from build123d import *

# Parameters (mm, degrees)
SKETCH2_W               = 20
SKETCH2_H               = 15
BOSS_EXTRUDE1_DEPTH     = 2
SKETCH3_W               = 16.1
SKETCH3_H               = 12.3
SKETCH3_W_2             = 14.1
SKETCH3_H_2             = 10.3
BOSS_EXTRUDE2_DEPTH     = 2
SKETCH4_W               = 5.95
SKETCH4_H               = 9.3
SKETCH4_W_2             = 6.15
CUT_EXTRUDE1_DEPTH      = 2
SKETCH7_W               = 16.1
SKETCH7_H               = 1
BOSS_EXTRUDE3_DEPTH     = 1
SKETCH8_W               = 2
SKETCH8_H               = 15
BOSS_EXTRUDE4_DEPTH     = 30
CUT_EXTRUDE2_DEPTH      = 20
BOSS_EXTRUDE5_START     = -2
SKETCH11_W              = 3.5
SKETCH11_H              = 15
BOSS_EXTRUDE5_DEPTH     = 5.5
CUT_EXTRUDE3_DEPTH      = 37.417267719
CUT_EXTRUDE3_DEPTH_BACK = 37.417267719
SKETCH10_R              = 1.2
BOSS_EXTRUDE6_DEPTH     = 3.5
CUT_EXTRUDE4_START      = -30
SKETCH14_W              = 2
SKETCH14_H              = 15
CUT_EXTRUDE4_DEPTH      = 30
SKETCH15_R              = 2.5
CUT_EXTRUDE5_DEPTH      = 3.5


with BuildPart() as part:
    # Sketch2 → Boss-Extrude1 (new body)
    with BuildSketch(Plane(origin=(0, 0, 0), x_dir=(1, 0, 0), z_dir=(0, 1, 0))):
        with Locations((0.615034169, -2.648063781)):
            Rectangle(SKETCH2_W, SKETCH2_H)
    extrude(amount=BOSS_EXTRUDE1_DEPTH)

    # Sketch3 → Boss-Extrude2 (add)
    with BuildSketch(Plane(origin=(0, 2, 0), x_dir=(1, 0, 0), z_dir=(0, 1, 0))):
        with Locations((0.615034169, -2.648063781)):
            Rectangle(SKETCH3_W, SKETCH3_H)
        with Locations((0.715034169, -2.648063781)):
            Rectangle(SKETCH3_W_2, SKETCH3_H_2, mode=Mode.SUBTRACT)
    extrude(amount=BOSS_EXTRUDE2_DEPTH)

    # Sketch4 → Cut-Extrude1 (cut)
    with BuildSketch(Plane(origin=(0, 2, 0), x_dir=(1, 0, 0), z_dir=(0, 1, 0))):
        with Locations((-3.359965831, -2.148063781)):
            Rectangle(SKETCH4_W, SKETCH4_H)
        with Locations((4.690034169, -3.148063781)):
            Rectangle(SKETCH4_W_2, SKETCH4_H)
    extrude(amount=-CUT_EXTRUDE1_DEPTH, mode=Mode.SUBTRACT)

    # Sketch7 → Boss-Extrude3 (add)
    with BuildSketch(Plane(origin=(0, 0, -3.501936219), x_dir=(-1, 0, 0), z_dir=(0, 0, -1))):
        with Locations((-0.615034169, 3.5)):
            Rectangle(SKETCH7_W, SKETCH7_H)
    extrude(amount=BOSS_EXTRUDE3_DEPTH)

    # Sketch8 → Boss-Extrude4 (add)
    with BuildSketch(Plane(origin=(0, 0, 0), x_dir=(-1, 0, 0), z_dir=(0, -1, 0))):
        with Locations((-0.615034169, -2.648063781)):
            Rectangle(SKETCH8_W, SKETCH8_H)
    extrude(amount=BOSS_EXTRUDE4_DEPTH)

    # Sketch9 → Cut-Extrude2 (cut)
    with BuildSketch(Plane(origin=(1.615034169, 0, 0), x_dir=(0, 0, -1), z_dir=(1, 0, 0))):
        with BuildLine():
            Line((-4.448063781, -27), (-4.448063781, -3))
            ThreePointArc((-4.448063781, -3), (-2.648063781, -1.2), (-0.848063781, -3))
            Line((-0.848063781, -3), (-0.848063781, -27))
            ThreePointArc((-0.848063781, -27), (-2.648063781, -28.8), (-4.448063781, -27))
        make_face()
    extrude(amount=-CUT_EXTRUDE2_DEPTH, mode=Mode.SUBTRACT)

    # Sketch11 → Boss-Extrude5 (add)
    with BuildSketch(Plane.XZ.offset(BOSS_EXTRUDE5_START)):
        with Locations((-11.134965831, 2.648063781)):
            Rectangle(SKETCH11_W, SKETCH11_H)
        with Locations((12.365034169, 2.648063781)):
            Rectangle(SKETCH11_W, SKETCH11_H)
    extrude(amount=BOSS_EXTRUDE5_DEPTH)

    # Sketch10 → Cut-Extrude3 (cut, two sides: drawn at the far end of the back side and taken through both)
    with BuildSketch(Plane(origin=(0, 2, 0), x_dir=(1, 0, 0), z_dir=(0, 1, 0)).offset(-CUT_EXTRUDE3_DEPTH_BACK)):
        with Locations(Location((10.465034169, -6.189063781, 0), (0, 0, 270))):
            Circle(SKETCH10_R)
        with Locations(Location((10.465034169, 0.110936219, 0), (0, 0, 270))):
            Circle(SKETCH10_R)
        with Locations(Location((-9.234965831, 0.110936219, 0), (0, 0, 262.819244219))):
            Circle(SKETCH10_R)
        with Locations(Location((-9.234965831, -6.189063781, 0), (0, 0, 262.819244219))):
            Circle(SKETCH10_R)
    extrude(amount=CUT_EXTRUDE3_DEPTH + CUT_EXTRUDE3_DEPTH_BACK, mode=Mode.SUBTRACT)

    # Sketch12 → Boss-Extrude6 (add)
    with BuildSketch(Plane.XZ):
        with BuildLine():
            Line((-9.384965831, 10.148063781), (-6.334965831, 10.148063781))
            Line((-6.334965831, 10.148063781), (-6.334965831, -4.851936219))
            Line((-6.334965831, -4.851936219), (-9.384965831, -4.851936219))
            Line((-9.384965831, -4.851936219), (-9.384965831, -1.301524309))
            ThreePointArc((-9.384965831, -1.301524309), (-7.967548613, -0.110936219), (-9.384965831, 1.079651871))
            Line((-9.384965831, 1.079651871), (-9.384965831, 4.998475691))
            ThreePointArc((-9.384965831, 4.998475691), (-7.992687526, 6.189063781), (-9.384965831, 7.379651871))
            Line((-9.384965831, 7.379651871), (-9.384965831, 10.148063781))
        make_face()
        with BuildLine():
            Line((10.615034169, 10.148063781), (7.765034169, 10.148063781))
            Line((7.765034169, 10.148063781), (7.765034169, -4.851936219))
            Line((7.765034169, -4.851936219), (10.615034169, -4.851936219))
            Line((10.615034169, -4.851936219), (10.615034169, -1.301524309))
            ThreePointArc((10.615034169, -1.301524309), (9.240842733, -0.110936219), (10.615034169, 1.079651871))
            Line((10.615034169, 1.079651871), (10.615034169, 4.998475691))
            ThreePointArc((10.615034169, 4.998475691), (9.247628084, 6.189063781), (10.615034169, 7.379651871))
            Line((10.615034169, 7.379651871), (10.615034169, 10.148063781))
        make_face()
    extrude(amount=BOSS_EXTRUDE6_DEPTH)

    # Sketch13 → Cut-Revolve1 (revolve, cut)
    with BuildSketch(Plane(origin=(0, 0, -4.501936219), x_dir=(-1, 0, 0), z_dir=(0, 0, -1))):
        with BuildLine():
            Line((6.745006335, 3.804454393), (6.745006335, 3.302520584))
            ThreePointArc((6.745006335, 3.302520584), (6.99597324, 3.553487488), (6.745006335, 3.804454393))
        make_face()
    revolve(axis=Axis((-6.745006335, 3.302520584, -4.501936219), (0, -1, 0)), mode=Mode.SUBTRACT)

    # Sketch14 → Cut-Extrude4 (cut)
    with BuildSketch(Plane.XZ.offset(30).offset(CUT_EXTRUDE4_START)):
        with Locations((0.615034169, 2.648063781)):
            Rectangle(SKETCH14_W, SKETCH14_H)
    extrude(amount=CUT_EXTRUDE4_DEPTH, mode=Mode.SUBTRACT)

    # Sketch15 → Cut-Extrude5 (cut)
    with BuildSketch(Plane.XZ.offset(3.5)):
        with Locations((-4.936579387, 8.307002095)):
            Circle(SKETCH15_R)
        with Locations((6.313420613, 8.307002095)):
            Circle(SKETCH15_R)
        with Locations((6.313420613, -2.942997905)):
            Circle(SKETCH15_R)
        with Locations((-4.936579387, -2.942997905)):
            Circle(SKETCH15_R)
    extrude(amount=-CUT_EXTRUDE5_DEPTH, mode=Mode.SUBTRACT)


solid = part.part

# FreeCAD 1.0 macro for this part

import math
import FreeCAD as App
import Part
import Sketcher

V = App.Vector

doc = App.newDocument("Part")
body = doc.addObject("PartDesign::Body", "Body")

# Sketch on XZ plane
sketch1 = body.newObject("Sketcher::SketchObject", "Sketch")
sketch1.AttachmentSupport = (doc.getObject("XZ_Plane"), [""])
sketch1.MapMode = "FlatFace"
sketch1.addGeometry([
    Part.LineSegment(V(-9, -5, 0), V(-9, 10, 0)),
    Part.LineSegment(V(-9, 10, 0), V(11, 10, 0)),
    Part.LineSegment(V(11, 10, 0), V(11, -5, 0)),
    Part.LineSegment(V(11, -5, 0), V(-9, -5, 0)),
], False)
sketch1.addConstraint([
    Sketcher.Constraint("Coincident", 0, 2, 1, 1),
    Sketcher.Constraint("Coincident", 1, 2, 2, 1),
    Sketcher.Constraint("Coincident", 2, 2, 3, 1),
    Sketcher.Constraint("Coincident", 3, 2, 0, 1),
    Sketcher.Constraint("Vertical", 0),
    Sketcher.Constraint("Horizontal", 1),
    Sketcher.Constraint("Vertical", 2),
    Sketcher.Constraint("Horizontal", 3),
    Sketcher.Constraint("DistanceX", 1, 1, 1, 2, 20.0),
    Sketcher.Constraint("DistanceY", 0, 1, 0, 2, 15.0),
    Sketcher.Constraint("DistanceX", 0, 2, -1, 1, 9.384966),
    Sketcher.Constraint("DistanceY", -1, 1, 0, 2, 10.148064),
])
pad1 = body.newObject("PartDesign::Pad", "Pad")
pad1.Profile = sketch1
pad1.Length = 2
pad1.Reversed = True

# Sketch on XZ plane
sketch2 = body.newObject("Sketcher::SketchObject", "Sketch001")
sketch2.AttachmentSupport = (doc.getObject("XZ_Plane"), [""])
sketch2.MapMode = "FlatFace"
sketch2.AttachmentOffset = App.Placement(V(0, 0, -2), App.Rotation())
sketch2.addGeometry([
    Part.LineSegment(V(-7, -4, 0), V(-7, 9, 0)),  # 0
    Part.LineSegment(V(-7, 9, 0), V(9, 9, 0)),  # 1
    Part.LineSegment(V(9, 9, 0), V(9, -4, 0)),  # 2
    Part.LineSegment(V(9, -4, 0), V(-7, -4, 0)),  # 3
    Part.LineSegment(V(8, 8, 0), V(-6, 8, 0)),  # 4
    Part.LineSegment(V(-6, 8, 0), V(-6, -3, 0)),  # 5
    Part.LineSegment(V(-6, -3, 0), V(8, -3, 0)),  # 6
    Part.LineSegment(V(8, -3, 0), V(8, 8, 0)),  # 7
], False)
sketch2.addConstraint([
    Sketcher.Constraint("Coincident", 0, 2, 1, 1),
    Sketcher.Constraint("Coincident", 1, 2, 2, 1),
    Sketcher.Constraint("Coincident", 2, 2, 3, 1),
    Sketcher.Constraint("Coincident", 3, 2, 0, 1),
    Sketcher.Constraint("Coincident", 4, 2, 5, 1),
    Sketcher.Constraint("Coincident", 5, 2, 6, 1),
    Sketcher.Constraint("Coincident", 6, 2, 7, 1),
    Sketcher.Constraint("Coincident", 7, 2, 4, 1),
    Sketcher.Constraint("Vertical", 0),
    Sketcher.Constraint("Horizontal", 1),
    Sketcher.Constraint("Vertical", 2),
    Sketcher.Constraint("Horizontal", 3),
    Sketcher.Constraint("Horizontal", 4),
    Sketcher.Constraint("Vertical", 5),
    Sketcher.Constraint("Horizontal", 6),
    Sketcher.Constraint("Vertical", 7),
    Sketcher.Constraint("DistanceX", 1, 1, 1, 2, 16.1),
    Sketcher.Constraint("DistanceX", 4, 2, 4, 1, 14.1),
    Sketcher.Constraint("DistanceY", 0, 1, 0, 2, 12.3),
    Sketcher.Constraint("DistanceY", 5, 2, 5, 1, 10.3),
    Sketcher.Constraint("DistanceY", 4, 2, 0, 2, 1.0),
    Sketcher.Constraint("DistanceX", 4, 2, 1, 2, 15.0),
    Sketcher.Constraint("DistanceX", 0, 2, -1, 1, 7.434966),
    Sketcher.Constraint("DistanceY", -1, 1, 0, 2, 8.798064),
])
pad2 = body.newObject("PartDesign::Pad", "Pad001")
pad2.Profile = sketch2
pad2.Length = 2
pad2.Reversed = True

# Sketch on XZ plane
sketch3 = body.newObject("Sketcher::SketchObject", "Sketch002")
sketch3.AttachmentSupport = (doc.getObject("XZ_Plane"), [""])
sketch3.MapMode = "FlatFace"
sketch3.AttachmentOffset = App.Placement(V(0, 0, -2), App.Rotation())
sketch3.addGeometry([
    Part.LineSegment(V(-6, -3, 0), V(-6, 7, 0)),  # 0
    Part.LineSegment(V(-6, 7, 0), V(0, 7, 0)),  # 1
    Part.LineSegment(V(0, 7, 0), V(0, -3, 0)),  # 2
    Part.LineSegment(V(0, -3, 0), V(-6, -3, 0)),  # 3
    Part.LineSegment(V(2, -2, 0), V(2, 8, 0)),  # 4
    Part.LineSegment(V(2, 8, 0), V(8, 8, 0)),  # 5
    Part.LineSegment(V(8, 8, 0), V(8, -2, 0)),  # 6
    Part.LineSegment(V(8, -2, 0), V(2, -2, 0)),  # 7
], False)
sketch3.addConstraint([
    Sketcher.Constraint("Coincident", 0, 2, 1, 1),
    Sketcher.Constraint("Coincident", 1, 2, 2, 1),
    Sketcher.Constraint("Coincident", 2, 2, 3, 1),
    Sketcher.Constraint("Coincident", 3, 2, 0, 1),
    Sketcher.Constraint("Coincident", 4, 2, 5, 1),
    Sketcher.Constraint("Coincident", 5, 2, 6, 1),
    Sketcher.Constraint("Coincident", 6, 2, 7, 1),
    Sketcher.Constraint("Coincident", 7, 2, 4, 1),
    Sketcher.Constraint("Vertical", 0),
    Sketcher.Constraint("Horizontal", 1),
    Sketcher.Constraint("Vertical", 2),
    Sketcher.Constraint("Horizontal", 3),
    Sketcher.Constraint("Vertical", 4),
    Sketcher.Constraint("Horizontal", 5),
    Sketcher.Constraint("Vertical", 6),
    Sketcher.Constraint("Horizontal", 7),
    Sketcher.Constraint("Equal", 2, 4),
    Sketcher.Constraint("DistanceY", 0, 1, 0, 2, 9.3),
    Sketcher.Constraint("DistanceX", 1, 2, 4, 2, 2.0),
    Sketcher.Constraint("DistanceY", 1, 2, 4, 2, 1.0),
    Sketcher.Constraint("DistanceX", 1, 1, 1, 2, 5.95),
    Sketcher.Constraint("DistanceX", 5, 1, 5, 2, 6.15),
    Sketcher.Constraint("DistanceX", 0, 2, -1, 1, 6.334966),
    Sketcher.Constraint("DistanceY", -1, 1, 0, 2, 6.798064),
])
pocket1 = body.newObject("PartDesign::Pocket", "Pocket")
pocket1.Profile = sketch3
pocket1.Length = 2
pocket1.Reversed = True

# Sketch on XY plane
sketch4 = body.newObject("Sketcher::SketchObject", "Sketch003")
sketch4.AttachmentSupport = (doc.getObject("XY_Plane"), [""])
sketch4.MapMode = "FlatFace"
sketch4.AttachmentOffset = App.Placement(V(0, 0, -3.501936), App.Rotation())
sketch4.addGeometry([
    Part.LineSegment(V(8.7, 4, 0), V(8.7, 3, 0)),
    Part.LineSegment(V(8.7, 3, 0), V(-7.4, 3, 0)),
    Part.LineSegment(V(-7.4, 3, 0), V(-7.4, 4, 0)),
    Part.LineSegment(V(-7.4, 4, 0), V(8.7, 4, 0)),
], False)
sketch4.addConstraint([
    Sketcher.Constraint("Coincident", 0, 2, 1, 1),
    Sketcher.Constraint("Coincident", 1, 2, 2, 1),
    Sketcher.Constraint("Coincident", 2, 2, 3, 1),
    Sketcher.Constraint("Coincident", 3, 2, 0, 1),
    Sketcher.Constraint("Vertical", 0),
    Sketcher.Constraint("Horizontal", 1),
    Sketcher.Constraint("Vertical", 2),
    Sketcher.Constraint("Horizontal", 3),
    Sketcher.Constraint("DistanceY", 0, 2, 0, 1, 1.0),
    Sketcher.Constraint("DistanceX", 1, 2, 1, 1, 16.1),
    Sketcher.Constraint("DistanceY", -1, 1, 0, 2, 3.0),
    Sketcher.Constraint("DistanceX", -1, 1, 0, 2, 8.665034),
])
pad3 = body.newObject("PartDesign::Pad", "Pad002")
pad3.Profile = sketch4
pad3.Length = 1
pad3.Reversed = True

# Sketch on XZ plane
sketch5 = body.newObject("Sketcher::SketchObject", "Sketch004")
sketch5.AttachmentSupport = (doc.getObject("XZ_Plane"), [""])
sketch5.MapMode = "FlatFace"
sketch5.addGeometry([
    Part.LineSegment(V(1.6, -4.9, 0), V(1.6, 10.1, 0)),
    Part.LineSegment(V(1.6, 10.1, 0), V(-0.4, 10.1, 0)),
    Part.LineSegment(V(-0.4, 10.1, 0), V(-0.4, -4.9, 0)),
    Part.LineSegment(V(-0.4, -4.9, 0), V(1.6, -4.9, 0)),
], False)
sketch5.addConstraint([
    Sketcher.Constraint("Coincident", 0, 2, 1, 1),
    Sketcher.Constraint("Coincident", 1, 2, 2, 1),
    Sketcher.Constraint("Coincident", 2, 2, 3, 1),
    Sketcher.Constraint("Coincident", 3, 2, 0, 1),
    Sketcher.Constraint("Vertical", 0),
    Sketcher.Constraint("Horizontal", 1),
    Sketcher.Constraint("Vertical", 2),
    Sketcher.Constraint("Horizontal", 3),
    Sketcher.Constraint("DistanceX", 1, 2, 1, 1, 2.0),
    Sketcher.Constraint("DistanceY", 0, 1, 0, 2, 15.0),
    Sketcher.Constraint("DistanceX", -1, 1, 0, 2, 1.615034),
    Sketcher.Constraint("DistanceY", -1, 1, 0, 2, 10.148064),
])
pad4 = body.newObject("PartDesign::Pad", "Pad003")
pad4.Profile = sketch5
pad4.Length = 30

# Sketch on YZ plane
sketch6 = body.newObject("Sketcher::SketchObject", "Sketch005")
sketch6.AttachmentSupport = (doc.getObject("YZ_Plane"), [""])
sketch6.MapMode = "FlatFace"
sketch6.AttachmentOffset = App.Placement(V(0, 0, 1.615034), App.Rotation())
sketch6.addGeometry([
    Part.LineSegment(V(-3, 4.4, 0), V(-27, 4.4, 0)),
    Part.ArcOfCircle(Part.Circle(V(-27, 2.6, 0), V(0, 0, 1), 1.8), math.radians(90), math.radians(270)),
    Part.LineSegment(V(-27, 0.8, 0), V(-3, 0.8, 0)),
    Part.ArcOfCircle(Part.Circle(V(-3, 2.6, 0), V(0, 0, 1), 1.8), math.radians(-90), math.radians(90)),
], False)
sketch6.addConstraint([
    Sketcher.Constraint("Tangent", 0, 2, 1, 1),
    Sketcher.Constraint("Tangent", 1, 2, 2, 1),
    Sketcher.Constraint("Tangent", 2, 2, 3, 1),
    Sketcher.Constraint("Tangent", 3, 2, 0, 1),
    Sketcher.Constraint("Horizontal", 0),
    Sketcher.Constraint("Horizontal", 2),
    Sketcher.Constraint("Radius", 1, 1.8),
    Sketcher.Constraint("DistanceX", 0, 2, 0, 1, 24.0),
    Sketcher.Constraint("DistanceX", 1, 3, -1, 1, 27.0),
    Sketcher.Constraint("DistanceY", -1, 1, 1, 3, 2.648064),
])
pocket2 = body.newObject("PartDesign::Pocket", "Pocket001")
pocket2.Profile = sketch6
pocket2.Length = 20

# Sketch on XZ plane
sketch7 = body.newObject("Sketcher::SketchObject", "Sketch006")
sketch7.AttachmentSupport = (doc.getObject("XZ_Plane"), [""])
sketch7.MapMode = "FlatFace"
sketch7.AttachmentOffset = App.Placement(V(0, 0, -2), App.Rotation())
sketch7.addGeometry([
    Part.LineSegment(V(-12.9, 10.1, 0), V(-12.9, -4.9, 0)),  # 0
    Part.LineSegment(V(-12.9, -4.9, 0), V(-9.4, -4.9, 0)),  # 1
    Part.LineSegment(V(-9.4, -4.9, 0), V(-9.4, 10.1, 0)),  # 2
    Part.LineSegment(V(-9.4, 10.1, 0), V(-12.9, 10.1, 0)),  # 3
    Part.LineSegment(V(10.6, 10.1, 0), V(10.6, -4.9, 0)),  # 4
    Part.LineSegment(V(10.6, -4.9, 0), V(14.1, -4.9, 0)),  # 5
    Part.LineSegment(V(14.1, -4.9, 0), V(14.1, 10.1, 0)),  # 6
    Part.LineSegment(V(14.1, 10.1, 0), V(10.6, 10.1, 0)),  # 7
], False)
sketch7.addConstraint([
    Sketcher.Constraint("Coincident", 0, 2, 1, 1),
    Sketcher.Constraint("Coincident", 1, 2, 2, 1),
    Sketcher.Constraint("Coincident", 2, 2, 3, 1),
    Sketcher.Constraint("Coincident", 3, 2, 0, 1),
    Sketcher.Constraint("Coincident", 4, 2, 5, 1),
    Sketcher.Constraint("Coincident", 5, 2, 6, 1),
    Sketcher.Constraint("Coincident", 6, 2, 7, 1),
    Sketcher.Constraint("Coincident", 7, 2, 4, 1),
    Sketcher.Constraint("Vertical", 0),
    Sketcher.Constraint("Horizontal", 1),
    Sketcher.Constraint("Vertical", 2),
    Sketcher.Constraint("Horizontal", 3),
    Sketcher.Constraint("Vertical", 4),
    Sketcher.Constraint("Horizontal", 5),
    Sketcher.Constraint("Vertical", 6),
    Sketcher.Constraint("Horizontal", 7),
    Sketcher.Constraint("Horizontal", 1, 2, 4, 2),
    Sketcher.Constraint("Horizontal", 3, 2, 6, 2),
    Sketcher.Constraint("Equal", 3, 5),
    Sketcher.Constraint("DistanceY", 0, 2, 0, 1, 15.0),
    Sketcher.Constraint("DistanceX", 1, 1, 1, 2, 3.5),
    Sketcher.Constraint("DistanceX", 1, 2, 4, 2, 20.0),
    Sketcher.Constraint("DistanceX", 0, 2, -1, 1, 12.884966),
    Sketcher.Constraint("DistanceY", 0, 2, -1, 1, 4.851936),
])
pad5 = body.newObject("PartDesign::Pad", "Pad004")
pad5.Profile = sketch7
pad5.Length = 5.5

# Sketch on XZ plane
sketch8 = body.newObject("Sketcher::SketchObject", "Sketch007")
sketch8.AttachmentSupport = (doc.getObject("XZ_Plane"), [""])
sketch8.MapMode = "FlatFace"
sketch8.AttachmentOffset = App.Placement(V(0, 0, -2), App.Rotation())
sketch8.addGeometry([
    Part.Circle(V(10.5, 6.2, 0), V(0, 0, 1), 1.2),
    Part.Circle(V(10.5, -0.1, 0), V(0, 0, 1), 1.2),
    Part.Circle(V(-9.2, -0.1, 0), V(0, 0, 1), 1.2),
    Part.Circle(V(-9.2, 6.2, 0), V(0, 0, 1), 1.2),
], False)
sketch8.addConstraint([
    Sketcher.Constraint("Equal", 0, 1),
    Sketcher.Constraint("Equal", 1, 2),
    Sketcher.Constraint("Equal", 2, 3),
    Sketcher.Constraint("Horizontal", 1, 3, 2, 3),
    Sketcher.Constraint("Horizontal", 0, 3, 3, 3),
    Sketcher.Constraint("Vertical", 0, 3, 1, 3),
    Sketcher.Constraint("Vertical", 2, 3, 3, 3),
    Sketcher.Constraint("Diameter", 0, 2.4),
    Sketcher.Constraint("DistanceY", 1, 3, 0, 3, 6.3),
    Sketcher.Constraint("DistanceX", 2, 3, 1, 3, 19.7),
    Sketcher.Constraint("DistanceX", -1, 1, 0, 3, 10.465034),
    Sketcher.Constraint("DistanceY", -1, 1, 0, 3, 6.189064),
])
pocket3 = body.newObject("PartDesign::Pocket", "Pocket002")
pocket3.Profile = sketch8
pocket3.Type = "ThroughAll"
pocket3.Midplane = True

# Sketch on XZ plane
sketch9 = body.newObject("Sketcher::SketchObject", "Sketch008")
sketch9.AttachmentSupport = (doc.getObject("XZ_Plane"), [""])
sketch9.MapMode = "FlatFace"
sketch9.addGeometry([
    Part.LineSegment(V(-6.3, 10.1, 0), V(-9.4, 10.1, 0)),  # 0
    Part.LineSegment(V(-9.4, 10.1, 0), V(-9.4, 7.4, 0)),  # 1
    Part.ArcOfCircle(Part.Circle(V(-9.2, 6.2, 0), V(0, 0, 1), 1.2), math.radians(-99), math.radians(99)),  # 2
    Part.LineSegment(V(-9.4, 5, 0), V(-9.4, 1.1, 0)),  # 3
    Part.ArcOfCircle(Part.Circle(V(-9.2, -0.1, 0), V(0, 0, 1), 1.2), math.radians(-100), math.radians(100)),  # 4
    Part.LineSegment(V(-9.4, -1.3, 0), V(-9.4, -4.9, 0)),  # 5
    Part.LineSegment(V(-9.4, -4.9, 0), V(-6.3, -4.9, 0)),  # 6
    Part.LineSegment(V(-6.3, -4.9, 0), V(-6.3, 10.1, 0)),  # 7
    Part.LineSegment(V(10.6, 10.1, 0), V(7.8, 10.1, 0)),  # 8
    Part.LineSegment(V(7.8, 10.1, 0), V(7.8, -4.9, 0)),  # 9
    Part.LineSegment(V(7.8, -4.9, 0), V(10.6, -4.9, 0)),  # 10
    Part.LineSegment(V(10.6, -4.9, 0), V(10.6, -1.3, 0)),  # 11
    Part.ArcOfCircle(Part.Circle(V(10.4, -0.1, 0), V(0, 0, 1), 1.2), math.radians(82), math.radians(278)),  # 12
    Part.LineSegment(V(10.6, 1.1, 0), V(10.6, 5, 0)),  # 13
    Part.ArcOfCircle(Part.Circle(V(10.4, 6.2, 0), V(0, 0, 1), 1.2), math.radians(82), math.radians(278)),  # 14
    Part.LineSegment(V(10.6, 7.4, 0), V(10.6, 10.1, 0)),  # 15
], False)
sketch9.addConstraint([
    Sketcher.Constraint("Coincident", 0, 2, 1, 1),
    Sketcher.Constraint("Coincident", 1, 2, 2, 2),
    Sketcher.Constraint("Coincident", 2, 1, 3, 1),
    Sketcher.Constraint("Coincident", 3, 2, 4, 2),
    Sketcher.Constraint("Coincident", 4, 1, 5, 1),
    Sketcher.Constraint("Coincident", 5, 2, 6, 1),
    Sketcher.Constraint("Coincident", 6, 2, 7, 1),
    Sketcher.Constraint("Coincident", 7, 2, 0, 1),
    Sketcher.Constraint("Coincident", 8, 2, 9, 1),
    Sketcher.Constraint("Coincident", 9, 2, 10, 1),
    Sketcher.Constraint("Coincident", 10, 2, 11, 1),
    Sketcher.Constraint("Coincident", 11, 2, 12, 2),
    Sketcher.Constraint("Coincident", 12, 1, 13, 1),
    Sketcher.Constraint("Coincident", 13, 2, 14, 2),
    Sketcher.Constraint("Coincident", 14, 1, 15, 1),
    Sketcher.Constraint("Coincident", 15, 2, 8, 1),
    Sketcher.Constraint("Horizontal", 0),
    Sketcher.Constraint("Vertical", 1),
    Sketcher.Constraint("Vertical", 3),
    Sketcher.Constraint("Vertical", 5),
    Sketcher.Constraint("Horizontal", 6),
    Sketcher.Constraint("Vertical", 7),
    Sketcher.Constraint("Horizontal", 8),
    Sketcher.Constraint("Vertical", 9),
    Sketcher.Constraint("Horizontal", 10),
    Sketcher.Constraint("Vertical", 11),
    Sketcher.Constraint("Vertical", 13),
    Sketcher.Constraint("Vertical", 15),
    Sketcher.Constraint("Horizontal", 4, 3, 12, 3),
    Sketcher.Constraint("Horizontal", 2, 3, 14, 3),
    Sketcher.Constraint("Horizontal", 7, 2, 8, 2),
    Sketcher.Constraint("Horizontal", 6, 2, 9, 2),
    Sketcher.Constraint("Horizontal", 4, 1, 11, 2),
    Sketcher.Constraint("Horizontal", 3, 2, 12, 1),
    Sketcher.Constraint("Horizontal", 2, 1, 13, 2),
    Sketcher.Constraint("Horizontal", 1, 2, 14, 1),
    Sketcher.Constraint("Vertical", 1, 2, 2, 1),
    Sketcher.Constraint("Vertical", 3, 2, 4, 1),
    Sketcher.Constraint("DistanceY", 7, 1, 7, 2, 15.0),
    Sketcher.Constraint("DistanceX", 0, 2, 0, 1, 3.05),
    Sketcher.Constraint("DistanceX", 8, 2, 8, 1, 2.85),
    Sketcher.Constraint("DistanceY", 4, 3, 2, 3, 6.3),
    Sketcher.Constraint("DistanceY", 3, 2, 1, 2, 6.3),
    Sketcher.Constraint("DistanceX", 7, 2, 8, 2, 14.1),
    Sketcher.Constraint("Radius", 14, 1.20202),
    Sketcher.Constraint("Radius", 2, 1.205197),
    Sketcher.Constraint("Radius", 4, 1.208738),
    Sketcher.Constraint("Radius", 12, 1.202854),
    Sketcher.Constraint("DistanceY", 2, 3, 0, 2, 3.959),
    Sketcher.Constraint("DistanceY", 1, 2, 1, 1, 2.768412),
    Sketcher.Constraint("DistanceX", -1, 1, 14, 3, 10.449648),
    Sketcher.Constraint("DistanceY", -1, 1, 1, 2, 7.379652),
])
pad6 = body.newObject("PartDesign::Pad", "Pad005")
pad6.Profile = sketch9
pad6.Length = 3.5

# Sketch on XY plane
sketch10 = body.newObject("Sketcher::SketchObject", "Sketch009")
sketch10.AttachmentSupport = (doc.getObject("XY_Plane"), [""])
sketch10.MapMode = "FlatFace"
sketch10.AttachmentOffset = App.Placement(V(0, 0, -4.501936), App.Rotation())
sketch10.addGeometry([
    Part.LineSegment(V(-6.75, 3.8, 0), V(-6.75, 3.3, 0)),
    Part.ArcOfCircle(Part.Circle(V(-6.75, 3.55, 0), V(0, 0, 1), 0.25), math.radians(90), math.radians(270)),
], False)
sketch10.addGeometry(Part.LineSegment(V(-6.75, 3.8, 0), V(-6.75, 3.3, 0)), True)  # axis
sketch10.addConstraint([
    Sketcher.Constraint("Coincident", 0, 1, 1, 1),
    Sketcher.Constraint("Coincident", 1, 2, 0, 2),
    Sketcher.Constraint("Vertical", 0),
    Sketcher.Constraint("Vertical", 2),
    Sketcher.Constraint("Coincident", 2, 1, 0, 1),
    Sketcher.Constraint("Vertical", 1, 3, 0, 1),
    Sketcher.Constraint("Equal", 0, 2),
    Sketcher.Constraint("Radius", 1, 0.250967),
    Sketcher.Constraint("DistanceY", -1, 1, 1, 2, 3.302521),
    Sketcher.Constraint("DistanceX", 1, 3, -1, 1, 6.745006),
])
groove = body.newObject("PartDesign::Groove", "Groove")
groove.Profile = sketch10
groove.ReferenceAxis = (sketch10, ["Axis0"])
groove.Angle = 360

# Sketch on XZ plane
sketch11 = body.newObject("Sketcher::SketchObject", "Sketch010")
sketch11.AttachmentSupport = (doc.getObject("XZ_Plane"), [""])
sketch11.MapMode = "FlatFace"
sketch11.addGeometry([
    Part.LineSegment(V(-0.4, 10.1, 0), V(-0.4, -4.9, 0)),
    Part.LineSegment(V(-0.4, -4.9, 0), V(1.6, -4.9, 0)),
    Part.LineSegment(V(1.6, -4.9, 0), V(1.6, 10.1, 0)),
    Part.LineSegment(V(1.6, 10.1, 0), V(-0.4, 10.1, 0)),
], False)
sketch11.addConstraint([
    Sketcher.Constraint("Coincident", 0, 2, 1, 1),
    Sketcher.Constraint("Coincident", 1, 2, 2, 1),
    Sketcher.Constraint("Coincident", 2, 2, 3, 1),
    Sketcher.Constraint("Coincident", 3, 2, 0, 1),
    Sketcher.Constraint("Vertical", 0),
    Sketcher.Constraint("Horizontal", 1),
    Sketcher.Constraint("Vertical", 2),
    Sketcher.Constraint("Horizontal", 3),
    Sketcher.Constraint("DistanceX", 1, 1, 1, 2, 2.0),
    Sketcher.Constraint("DistanceY", 0, 2, 0, 1, 15.0),
    Sketcher.Constraint("DistanceX", 0, 2, -1, 1, 0.384966),
    Sketcher.Constraint("DistanceY", 0, 2, -1, 1, 4.851936),
])
pocket4 = body.newObject("PartDesign::Pocket", "Pocket003")
pocket4.Profile = sketch11
pocket4.Length = 30
pocket4.Reversed = True

# Sketch on XZ plane
sketch12 = body.newObject("Sketcher::SketchObject", "Sketch011")
sketch12.AttachmentSupport = (doc.getObject("XZ_Plane"), [""])
sketch12.MapMode = "FlatFace"
sketch12.AttachmentOffset = App.Placement(V(0, 0, 3.5), App.Rotation())
sketch12.addGeometry([
    Part.Circle(V(-4.9, 8.3, 0), V(0, 0, 1), 2.5),
    Part.Circle(V(6.3, 8.3, 0), V(0, 0, 1), 2.5),
    Part.Circle(V(6.3, -2.9, 0), V(0, 0, 1), 2.5),
    Part.Circle(V(-4.9, -2.9, 0), V(0, 0, 1), 2.5),
], False)
sketch12.addConstraint([
    Sketcher.Constraint("Equal", 0, 1),
    Sketcher.Constraint("Equal", 1, 2),
    Sketcher.Constraint("Equal", 2, 3),
    Sketcher.Constraint("Horizontal", 0, 3, 1, 3),
    Sketcher.Constraint("Horizontal", 2, 3, 3, 3),
    Sketcher.Constraint("Vertical", 1, 3, 2, 3),
    Sketcher.Constraint("Vertical", 0, 3, 3, 3),
    Sketcher.Constraint("Diameter", 0, 5.0),
    Sketcher.Constraint("DistanceX", 0, 3, 1, 3, 11.25),
    Sketcher.Constraint("DistanceY", 2, 3, 1, 3, 11.25),
    Sketcher.Constraint("DistanceX", 0, 3, -1, 1, 4.936579),
    Sketcher.Constraint("DistanceY", -1, 1, 0, 3, 8.307002),
])
pocket5 = body.newObject("PartDesign::Pocket", "Pocket004")
pocket5.Profile = sketch12
pocket5.Length = 3.5

doc.recompute()
